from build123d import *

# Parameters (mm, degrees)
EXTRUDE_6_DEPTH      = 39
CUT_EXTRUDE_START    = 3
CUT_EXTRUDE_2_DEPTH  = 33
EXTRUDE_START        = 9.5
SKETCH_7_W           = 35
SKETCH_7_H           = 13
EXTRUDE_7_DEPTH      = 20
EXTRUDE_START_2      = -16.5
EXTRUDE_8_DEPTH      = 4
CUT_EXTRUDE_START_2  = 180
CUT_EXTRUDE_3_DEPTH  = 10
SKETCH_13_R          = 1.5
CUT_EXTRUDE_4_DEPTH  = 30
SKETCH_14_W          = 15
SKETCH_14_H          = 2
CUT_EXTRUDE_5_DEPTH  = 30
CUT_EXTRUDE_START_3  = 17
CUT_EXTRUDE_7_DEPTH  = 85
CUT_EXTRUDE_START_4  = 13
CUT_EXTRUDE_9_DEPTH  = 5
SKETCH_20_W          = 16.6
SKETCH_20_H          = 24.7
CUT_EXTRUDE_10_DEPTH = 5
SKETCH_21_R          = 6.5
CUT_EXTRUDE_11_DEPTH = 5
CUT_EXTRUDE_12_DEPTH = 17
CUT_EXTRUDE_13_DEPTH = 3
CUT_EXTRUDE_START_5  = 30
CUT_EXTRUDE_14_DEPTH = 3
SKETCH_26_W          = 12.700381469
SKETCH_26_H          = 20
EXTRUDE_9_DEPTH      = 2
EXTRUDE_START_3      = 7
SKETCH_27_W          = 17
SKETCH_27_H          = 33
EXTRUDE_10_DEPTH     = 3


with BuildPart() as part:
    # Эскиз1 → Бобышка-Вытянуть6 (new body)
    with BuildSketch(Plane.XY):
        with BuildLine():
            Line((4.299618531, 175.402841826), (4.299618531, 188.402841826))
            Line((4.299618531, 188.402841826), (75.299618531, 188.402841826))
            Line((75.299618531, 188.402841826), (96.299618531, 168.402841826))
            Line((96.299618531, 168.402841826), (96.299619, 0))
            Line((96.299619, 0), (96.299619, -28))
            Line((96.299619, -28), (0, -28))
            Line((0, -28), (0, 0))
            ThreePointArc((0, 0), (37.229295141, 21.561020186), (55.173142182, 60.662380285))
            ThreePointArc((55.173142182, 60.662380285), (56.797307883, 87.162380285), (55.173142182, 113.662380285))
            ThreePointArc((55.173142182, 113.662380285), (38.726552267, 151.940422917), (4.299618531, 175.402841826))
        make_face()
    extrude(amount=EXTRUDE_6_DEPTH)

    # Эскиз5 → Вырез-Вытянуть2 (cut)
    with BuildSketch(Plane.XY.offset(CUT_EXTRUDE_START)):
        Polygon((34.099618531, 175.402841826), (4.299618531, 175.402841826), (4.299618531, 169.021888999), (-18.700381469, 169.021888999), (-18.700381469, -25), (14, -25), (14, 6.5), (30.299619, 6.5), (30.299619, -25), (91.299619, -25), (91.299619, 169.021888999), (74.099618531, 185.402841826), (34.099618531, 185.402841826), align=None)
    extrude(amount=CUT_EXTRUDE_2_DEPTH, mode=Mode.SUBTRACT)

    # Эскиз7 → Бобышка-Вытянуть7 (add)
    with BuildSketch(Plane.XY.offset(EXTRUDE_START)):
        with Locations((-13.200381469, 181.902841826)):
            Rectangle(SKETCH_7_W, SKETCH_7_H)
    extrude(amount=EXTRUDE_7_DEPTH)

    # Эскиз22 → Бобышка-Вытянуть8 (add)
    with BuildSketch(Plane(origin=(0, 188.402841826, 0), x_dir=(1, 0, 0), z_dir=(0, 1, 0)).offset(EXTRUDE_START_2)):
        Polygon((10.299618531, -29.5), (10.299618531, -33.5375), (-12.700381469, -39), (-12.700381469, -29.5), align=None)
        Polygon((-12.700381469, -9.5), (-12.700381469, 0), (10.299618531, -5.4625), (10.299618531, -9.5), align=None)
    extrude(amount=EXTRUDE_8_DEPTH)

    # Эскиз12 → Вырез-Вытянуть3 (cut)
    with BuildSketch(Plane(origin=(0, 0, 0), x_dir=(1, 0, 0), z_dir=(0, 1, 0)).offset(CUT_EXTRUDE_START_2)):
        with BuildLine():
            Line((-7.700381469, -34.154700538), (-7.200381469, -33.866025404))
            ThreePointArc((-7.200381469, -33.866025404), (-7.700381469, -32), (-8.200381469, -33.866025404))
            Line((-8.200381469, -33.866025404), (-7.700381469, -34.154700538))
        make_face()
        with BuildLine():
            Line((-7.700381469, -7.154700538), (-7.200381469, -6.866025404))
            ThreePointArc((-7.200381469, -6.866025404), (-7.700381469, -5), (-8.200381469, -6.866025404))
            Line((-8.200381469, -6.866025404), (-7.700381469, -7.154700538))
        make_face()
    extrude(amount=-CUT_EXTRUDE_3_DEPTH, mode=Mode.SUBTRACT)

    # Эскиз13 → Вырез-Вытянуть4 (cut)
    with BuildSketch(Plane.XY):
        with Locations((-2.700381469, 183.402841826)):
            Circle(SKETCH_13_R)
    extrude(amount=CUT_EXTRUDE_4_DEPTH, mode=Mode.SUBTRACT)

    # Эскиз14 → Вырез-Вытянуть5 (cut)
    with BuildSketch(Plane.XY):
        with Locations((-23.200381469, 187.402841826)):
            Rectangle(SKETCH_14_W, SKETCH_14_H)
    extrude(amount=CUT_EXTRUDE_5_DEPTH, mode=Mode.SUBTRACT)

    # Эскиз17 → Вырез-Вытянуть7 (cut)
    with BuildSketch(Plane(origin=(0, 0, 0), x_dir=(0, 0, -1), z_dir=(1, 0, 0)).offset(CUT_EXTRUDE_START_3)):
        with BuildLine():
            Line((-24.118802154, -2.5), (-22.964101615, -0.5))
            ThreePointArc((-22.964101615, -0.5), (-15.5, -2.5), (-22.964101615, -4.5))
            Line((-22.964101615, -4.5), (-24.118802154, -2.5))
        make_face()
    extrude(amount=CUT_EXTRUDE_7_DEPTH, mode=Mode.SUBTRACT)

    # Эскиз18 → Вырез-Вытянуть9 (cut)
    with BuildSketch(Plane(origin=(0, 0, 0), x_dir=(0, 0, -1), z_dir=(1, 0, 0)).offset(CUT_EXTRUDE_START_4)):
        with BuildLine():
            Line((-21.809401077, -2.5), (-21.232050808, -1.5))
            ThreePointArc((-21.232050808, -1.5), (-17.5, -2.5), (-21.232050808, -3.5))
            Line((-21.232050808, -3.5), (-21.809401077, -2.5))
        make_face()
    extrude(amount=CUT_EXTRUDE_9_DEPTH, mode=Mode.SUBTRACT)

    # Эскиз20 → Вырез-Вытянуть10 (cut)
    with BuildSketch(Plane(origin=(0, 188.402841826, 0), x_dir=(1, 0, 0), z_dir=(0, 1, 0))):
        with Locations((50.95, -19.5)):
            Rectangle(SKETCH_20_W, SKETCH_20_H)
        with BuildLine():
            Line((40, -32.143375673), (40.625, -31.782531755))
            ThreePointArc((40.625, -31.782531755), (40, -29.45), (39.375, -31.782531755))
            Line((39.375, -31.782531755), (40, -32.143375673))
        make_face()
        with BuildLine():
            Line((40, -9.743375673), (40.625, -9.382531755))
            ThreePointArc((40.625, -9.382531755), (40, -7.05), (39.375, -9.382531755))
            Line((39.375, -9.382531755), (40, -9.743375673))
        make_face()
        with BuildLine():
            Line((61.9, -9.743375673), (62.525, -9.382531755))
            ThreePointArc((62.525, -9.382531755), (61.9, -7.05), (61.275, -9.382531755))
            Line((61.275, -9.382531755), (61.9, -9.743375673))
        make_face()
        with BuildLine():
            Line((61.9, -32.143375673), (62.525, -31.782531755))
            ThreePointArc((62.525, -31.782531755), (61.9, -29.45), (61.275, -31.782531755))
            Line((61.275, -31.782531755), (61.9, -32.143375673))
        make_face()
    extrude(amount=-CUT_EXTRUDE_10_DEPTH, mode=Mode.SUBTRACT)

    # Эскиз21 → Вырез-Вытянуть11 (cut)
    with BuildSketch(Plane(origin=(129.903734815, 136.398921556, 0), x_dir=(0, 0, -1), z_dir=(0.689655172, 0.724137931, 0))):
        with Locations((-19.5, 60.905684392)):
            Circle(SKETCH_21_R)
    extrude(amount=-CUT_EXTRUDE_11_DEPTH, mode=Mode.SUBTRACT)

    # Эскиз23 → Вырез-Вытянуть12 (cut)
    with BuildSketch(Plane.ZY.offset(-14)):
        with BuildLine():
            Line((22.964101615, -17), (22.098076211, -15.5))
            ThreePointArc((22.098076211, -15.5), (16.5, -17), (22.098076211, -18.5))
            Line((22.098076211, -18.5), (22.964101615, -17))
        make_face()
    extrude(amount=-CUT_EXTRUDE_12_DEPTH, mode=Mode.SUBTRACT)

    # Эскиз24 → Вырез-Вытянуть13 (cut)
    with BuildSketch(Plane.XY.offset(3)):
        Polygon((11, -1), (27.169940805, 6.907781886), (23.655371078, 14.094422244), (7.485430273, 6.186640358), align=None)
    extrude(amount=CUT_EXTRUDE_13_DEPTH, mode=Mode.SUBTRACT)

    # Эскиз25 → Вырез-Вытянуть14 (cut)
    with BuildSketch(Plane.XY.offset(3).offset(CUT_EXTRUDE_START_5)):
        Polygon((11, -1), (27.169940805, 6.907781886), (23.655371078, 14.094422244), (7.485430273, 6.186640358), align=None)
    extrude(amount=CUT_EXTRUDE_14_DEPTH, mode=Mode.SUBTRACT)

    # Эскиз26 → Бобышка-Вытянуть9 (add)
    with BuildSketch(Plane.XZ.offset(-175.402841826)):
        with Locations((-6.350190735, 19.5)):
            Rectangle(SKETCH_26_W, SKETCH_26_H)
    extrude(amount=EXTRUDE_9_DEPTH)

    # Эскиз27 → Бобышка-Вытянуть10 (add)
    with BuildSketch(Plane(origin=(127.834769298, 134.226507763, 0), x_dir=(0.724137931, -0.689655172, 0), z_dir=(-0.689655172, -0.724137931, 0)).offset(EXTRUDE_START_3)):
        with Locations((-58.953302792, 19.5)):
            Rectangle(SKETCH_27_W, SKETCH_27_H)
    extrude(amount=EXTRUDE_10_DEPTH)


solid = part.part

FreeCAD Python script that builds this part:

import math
import FreeCAD as App
import Part
import Sketcher

V = App.Vector
Q = App.Units.Quantity

doc = App.newDocument("Part")
body = doc.addObject("PartDesign::Body", "Body")

# Sketch on XY plane
sketch1 = doc.addObject("Sketcher::SketchObject", "Sketch")
body.addObject(sketch1)
sketch1.AttachmentSupport = (doc.XY_Plane, [""])
sketch1.MapMode = "FlatFace"
sketch1.addGeometry([
    Part.LineSegment(V(4, 188, 0), V(4, 175, 0)),  # 0
    Part.ArcOfCircle(Part.Circle(V(-19, 105, 0), V(0, 0, 1), 75), math.radians(7), math.radians(72)),  # 1
    Part.ArcOfCircle(Part.Circle(V(-160, 87, 0), V(0, 0, 1), 217), math.radians(-7.01), math.radians(7.01)),  # 2
    Part.ArcOfCircle(Part.Circle(V(-15, 69, 0), V(0, 0, 1), 71), math.radians(-78), math.radians(-7)),  # 3
    Part.LineSegment(V(0, 0, 0), V(0, -28, 0)),  # 4
    Part.LineSegment(V(0, -28, 0), V(96, -28, 0)),  # 5
    Part.LineSegment(V(96, -28, 0), V(96, 0, 0)),  # 6
    Part.LineSegment(V(96, 0, 0), V(96, 168, 0)),  # 7
    Part.LineSegment(V(96, 168, 0), V(75, 188, 0)),  # 8
    Part.LineSegment(V(75, 188, 0), V(4, 188, 0)),  # 9
], False)
sketch1.addConstraint([
    Sketcher.Constraint("Coincident", 0, 2, 1, 2),
    Sketcher.Constraint("Tangent", 1, 1, 2, 2),
    Sketcher.Constraint("Tangent", 2, 1, 3, 2),
    Sketcher.Constraint("Coincident", 3, 1, 4, 1),
    Sketcher.Constraint("Coincident", 4, 2, 5, 1),
    Sketcher.Constraint("Coincident", 5, 2, 6, 1),
    Sketcher.Constraint("Coincident", 6, 2, 7, 1),
    Sketcher.Constraint("Coincident", 7, 2, 8, 1),
    Sketcher.Constraint("Coincident", 8, 2, 9, 1),
    Sketcher.Constraint("Coincident", 9, 2, 0, 1),
    Sketcher.Constraint("Vertical", 0),
    Sketcher.Constraint("Vertical", 4),
    Sketcher.Constraint("Horizontal", 5),
    Sketcher.Constraint("Vertical", 6),
    Sketcher.Constraint("Vertical", 7),
    Sketcher.Constraint("Horizontal", 9),
    Sketcher.Constraint("Coincident", 3, 1, -1, 1),
    Sketcher.Constraint("PointOnObject", 6, 2, -1),
    Sketcher.Constraint("Vertical", 1, 1, 2, 1),
    Sketcher.Constraint("Radius", 2, Q("217 mm")),
    Sketcher.Constraint("Radius", 3, Q("71 mm")),
    Sketcher.Constraint("Radius", 1, Q("74.5 mm")),
    Sketcher.Constraint("DistanceX", 9, 2, 9, 1, Q("71 mm")),
    Sketcher.Constraint("DistanceY", 0, 2, 0, 1, Q("13 mm")),
    Sketcher.Constraint("DistanceY", 4, 2, 4, 1, Q("28 mm")),
    Sketcher.Constraint("Distance", 8, Q("29 mm")),
    Sketcher.Constraint("DistanceY", 2, 1, 1, 1, Q("53 mm")),
    Sketcher.Constraint("DistanceX", 0, 2, 7, 2, Q("92 mm")),
    Sketcher.Constraint("DistanceX", 5, 1, 5, 2, Q("96.299619 mm")),
    Sketcher.Constraint("DistanceY", 7, 1, 7, 2, Q("168.402842 mm")),
])
pad1 = doc.addObject("PartDesign::Pad", "Pad")
body.addObject(pad1)
pad1.Profile = sketch1
pad1.Length = 39

# Sketch on XY plane
sketch2 = doc.addObject("Sketcher::SketchObject", "Sketch001")
body.addObject(sketch2)
sketch2.AttachmentSupport = (doc.XY_Plane, [""])
sketch2.MapMode = "FlatFace"
sketch2.AttachmentOffset = App.Placement(V(0, 0, 3), App.Rotation())
sketch2.addGeometry([
    Part.LineSegment(V(34, 175, 0), V(4, 175, 0)),  # 0
    Part.LineSegment(V(4, 175, 0), V(4, 169, 0)),  # 1
    Part.LineSegment(V(4, 169, 0), V(-19, 169, 0)),  # 2
    Part.LineSegment(V(-19, 169, 0), V(-19, -25, 0)),  # 3
    Part.LineSegment(V(-19, -25, 0), V(14, -25, 0)),  # 4
    Part.LineSegment(V(14, -25, 0), V(14, 6, 0)),  # 5
    Part.LineSegment(V(14, 6, 0), V(30, 6, 0)),  # 6
    Part.LineSegment(V(30, 6, 0), V(30, -25, 0)),  # 7
    Part.LineSegment(V(30, -25, 0), V(91, -25, 0)),  # 8
    Part.LineSegment(V(91, -25, 0), V(91, 169, 0)),  # 9
    Part.LineSegment(V(91, 169, 0), V(74, 185, 0)),  # 10
    Part.LineSegment(V(74, 185, 0), V(34, 185, 0)),  # 11
    Part.LineSegment(V(34, 185, 0), V(34, 175, 0)),  # 12
], False)
sketch2.addConstraint([
    Sketcher.Constraint("Coincident", 0, 2, 1, 1),
    Sketcher.Constraint("Coincident", 1, 2, 2, 1),
    Sketcher.Constraint("Coincident", 2, 2, 3, 1),
    Sketcher.Constraint("Coincident", 3, 2, 4, 1),
    Sketcher.Constraint("Coincident", 4, 2, 5, 1),
    Sketcher.Constraint("Coincident", 5, 2, 6, 1),
    Sketcher.Constraint("Coincident", 6, 2, 7, 1),
    Sketcher.Constraint("Coincident", 7, 2, 8, 1),
    Sketcher.Constraint("Coincident", 8, 2, 9, 1),
    Sketcher.Constraint("Coincident", 9, 2, 10, 1),
    Sketcher.Constraint("Coincident", 10, 2, 11, 1),
    Sketcher.Constraint("Coincident", 11, 2, 12, 1),
    Sketcher.Constraint("Coincident", 12, 2, 0, 1),
    Sketcher.Constraint("Horizontal", 0),
    Sketcher.Constraint("Vertical", 1),
    Sketcher.Constraint("Horizontal", 2),
    Sketcher.Constraint("Vertical", 3),
    Sketcher.Constraint("Horizontal", 4),
    Sketcher.Constraint("Vertical", 5),
    Sketcher.Constraint("Horizontal", 6),
    Sketcher.Constraint("Vertical", 7),
    Sketcher.Constraint("Horizontal", 8),
    Sketcher.Constraint("Vertical", 9),
    Sketcher.Constraint("Horizontal", 11),
    Sketcher.Constraint("Vertical", 12),
    Sketcher.Constraint("Horizontal", 4, 2, 7, 2),
    Sketcher.Constraint("Horizontal", 2, 2, 9, 2),
    Sketcher.Constraint("DistanceX", 2, 2, 2, 1, Q("23 mm")),
    Sketcher.Constraint("DistanceX", 8, 1, 8, 2, Q("61 mm")),
    Sketcher.Constraint("DistanceX", 11, 2, 11, 1, Q("40 mm")),
    Sketcher.Constraint("DistanceY", 12, 2, 12, 1, Q("10 mm")),
    Sketcher.Constraint("DistanceX", 0, 2, 0, 1, Q("29.8 mm")),
    Sketcher.Constraint("DistanceY", 5, 1, 5, 2, Q("31.5 mm")),
    Sketcher.Constraint("DistanceY", 3, 2, -1, 1, Q("25 mm")),
    Sketcher.Constraint("DistanceX", -1, 1, 4, 2, Q("14 mm")),
    Sketcher.Constraint("DistanceX", 3, 2, 6, 2, Q("49 mm")),
    Sketcher.Constraint("DistanceX", 4, 1, 4, 2, Q("32.700381 mm")),
    Sketcher.Constraint("DistanceY", 3, 2, 3, 1, Q("194.021889 mm")),
    Sketcher.Constraint("Distance", 10, Q("23.752382 mm")),
])
pocket1 = doc.addObject("PartDesign::Pocket", "Pocket")
body.addObject(pocket1)
pocket1.Profile = sketch2
pocket1.Length = 33
pocket1.Reversed = True

# Sketch on XY plane
sketch3 = doc.addObject("Sketcher::SketchObject", "Sketch002")
body.addObject(sketch3)
sketch3.AttachmentSupport = (doc.XY_Plane, [""])
sketch3.MapMode = "FlatFace"
sketch3.AttachmentOffset = App.Placement(V(0, 0, 9.5), App.Rotation())
sketch3.addGeometry([
    Part.LineSegment(V(-31, 188, 0), V(-31, 175, 0)),
    Part.LineSegment(V(-31, 175, 0), V(4, 175, 0)),
    Part.LineSegment(V(4, 175, 0), V(4, 188, 0)),
    Part.LineSegment(V(4, 188, 0), V(-31, 188, 0)),
], False)
sketch3.addConstraint([
    Sketcher.Constraint("Coincident", 0, 2, 1, 1),
    Sketcher.Constraint("Coincident", 1, 2, 2, 1),
    Sketcher.Constraint("Coincident", 2, 2, 3, 1),
    Sketcher.Constraint("Coincident", 3, 2, 0, 1),
    Sketcher.Constraint("Vertical", 0),
    Sketcher.Constraint("Horizontal", 1),
    Sketcher.Constraint("Vertical", 2),
    Sketcher.Constraint("Horizontal", 3),
    Sketcher.Constraint("DistanceX", 1, 1, 1, 2, Q("35 mm")),
    Sketcher.Constraint("DistanceY", 0, 2, 0, 1, Q("13 mm")),
    Sketcher.Constraint("DistanceX", 0, 2, -1, 1, Q("30.700381 mm")),
    Sketcher.Constraint("DistanceY", -1, 1, 0, 2, Q("175.402842 mm")),
])
pad2 = doc.addObject("PartDesign::Pad", "Pad001")
body.addObject(pad2)
pad2.Profile = sketch3
pad2.Length = 20

# Sketch on XZ plane
sketch4 = doc.addObject("Sketcher::SketchObject", "Sketch003")
body.addObject(sketch4)
sketch4.AttachmentSupport = (doc.XZ_Plane, [""])
sketch4.MapMode = "FlatFace"
sketch4.AttachmentOffset = App.Placement(V(0, 0, -171.902842), App.Rotation())
sketch4.addGeometry([
    Part.LineSegment(V(10.3, 33.5, 0), V(10.3, 29.5, 0)),  # 0
    Part.LineSegment(V(10.3, 29.5, 0), V(-12.7, 29.5, 0)),  # 1
    Part.LineSegment(V(-12.7, 29.5, 0), V(-12.7, 39, 0)),  # 2
    Part.LineSegment(V(-12.7, 39, 0), V(10.3, 33.5, 0)),  # 3
    Part.LineSegment(V(-12.7, 0, 0), V(-12.7, 9.5, 0)),  # 4
    Part.LineSegment(V(-12.7, 9.5, 0), V(10.3, 9.5, 0)),  # 5
    Part.LineSegment(V(10.3, 9.5, 0), V(10.3, 5.5, 0)),  # 6
    Part.LineSegment(V(10.3, 5.5, 0), V(-12.7, 0, 0)),  # 7
], False)
sketch4.addConstraint([
    Sketcher.Constraint("Coincident", 0, 2, 1, 1),
    Sketcher.Constraint("Coincident", 1, 2, 2, 1),
    Sketcher.Constraint("Coincident", 2, 2, 3, 1),
    Sketcher.Constraint("Coincident", 3, 2, 0, 1),
    Sketcher.Constraint("Coincident", 4, 2, 5, 1),
    Sketcher.Constraint("Coincident", 5, 2, 6, 1),
    Sketcher.Constraint("Coincident", 6, 2, 7, 1),
    Sketcher.Constraint("Coincident", 7, 2, 4, 1),
    Sketcher.Constraint("Vertical", 0),
    Sketcher.Constraint("Horizontal", 1),
    Sketcher.Constraint("Vertical", 2),
    Sketcher.Constraint("Vertical", 4),
    Sketcher.Constraint("Horizontal", 5),
    Sketcher.Constraint("Vertical", 6),
    Sketcher.Constraint("PointOnObject", 7, 2, -1),
    Sketcher.Constraint("Vertical", 2, 2, 4, 2),
    Sketcher.Constraint("Vertical", 3, 2, 5, 2),
    Sketcher.Constraint("Equal", 2, 4),
    Sketcher.Constraint("Equal", 0, 6),
    Sketcher.Constraint("DistanceX", 1, 2, 1, 1, Q("23 mm")),
    Sketcher.Constraint("DistanceY", 2, 1, 2, 2, Q("9.5 mm")),
    Sketcher.Constraint("DistanceY", -1, 1, 2, 2, Q("39 mm")),
    Sketcher.Constraint("DistanceY", 0, 2, 0, 1, Q("4.0375 mm")),
    Sketcher.Constraint("DistanceX", -1, 1, 0, 2, Q("10.299619 mm")),
])
pad3 = doc.addObject("PartDesign::Pad", "Pad002")
body.addObject(pad3)
pad3.Profile = sketch4
pad3.Length = 4
pad3.Reversed = True

# Sketch on XZ plane
sketch5 = doc.addObject("Sketcher::SketchObject", "Sketch004")
body.addObject(sketch5)
sketch5.AttachmentSupport = (doc.XZ_Plane, [""])
sketch5.MapMode = "FlatFace"
sketch5.AttachmentOffset = App.Placement(V(0, 0, -180), App.Rotation())
sketch5.addGeometry([
    Part.LineSegment(V(-7.7, 34.2, 0), V(-7.2, 33.9, 0)),  # 0
    Part.ArcOfCircle(Part.Circle(V(-7.7, 33, 0), V(0, 0, 1), 1), math.radians(120), math.radians(420)),  # 1
    Part.LineSegment(V(-8.2, 33.9, 0), V(-7.7, 34.2, 0)),  # 2
    Part.LineSegment(V(-7.7, 7.2, 0), V(-7.2, 6.9, 0)),  # 3
    Part.ArcOfCircle(Part.Circle(V(-7.7, 6, 0), V(0, 0, 1), 1), math.radians(120), math.radians(420)),  # 4
    Part.LineSegment(V(-8.2, 6.9, 0), V(-7.7, 7.2, 0)),  # 5
], False)
sketch5.addConstraint([
    Sketcher.Constraint("Tangent", 0, 2, 1, 2),
    Sketcher.Constraint("Tangent", 1, 1, 2, 1),
    Sketcher.Constraint("Coincident", 2, 2, 0, 1),
    Sketcher.Constraint("Tangent", 3, 2, 4, 2),
    Sketcher.Constraint("Tangent", 4, 1, 5, 1),
    Sketcher.Constraint("Coincident", 5, 2, 3, 1),
    Sketcher.Constraint("Equal", 1, 4),
    Sketcher.Constraint("Parallel", 0, 3),
    Sketcher.Constraint("Parallel", 2, 5),
    Sketcher.Constraint("Horizontal", 0, 2, 1, 1),
    Sketcher.Constraint("Vertical", 1, 3, 4, 3),
    Sketcher.Constraint("Radius", 1, Q("1 mm")),
    Sketcher.Constraint("Angle", 0, Q("-30 deg")),
    Sketcher.Constraint("DistanceY", -1, 1, 1, 3, Q("33 mm")),
    Sketcher.Constraint("DistanceY", -1, 1, 4, 3, Q("6 mm")),
    Sketcher.Constraint("DistanceX", 1, 3, -1, 1, Q("7.700381 mm")),
])
pocket2 = doc.addObject("PartDesign::Pocket", "Pocket001")
body.addObject(pocket2)
pocket2.Profile = sketch5
pocket2.Length = 10
pocket2.Reversed = True

# Sketch on XY plane
sketch6 = doc.addObject("Sketcher::SketchObject", "Sketch005")
body.addObject(sketch6)
sketch6.AttachmentSupport = (doc.XY_Plane, [""])
sketch6.MapMode = "FlatFace"
sketch6.addGeometry(Part.Circle(V(-2.7, 183.4, 0), V(0, 0, 1), 1.5), False)
sketch6.addConstraint([
    Sketcher.Constraint("Diameter", 0, Q("3 mm")),
    Sketcher.Constraint("DistanceX", 0, 3, -1, 1, Q("2.700381 mm")),
    Sketcher.Constraint("DistanceY", -1, 1, 0, 3, Q("183.402842 mm")),
])
pocket3 = doc.addObject("PartDesign::Pocket", "Pocket002")
body.addObject(pocket3)
pocket3.Profile = sketch6
pocket3.Length = 30
pocket3.Reversed = True

# Sketch on XY plane
sketch7 = doc.addObject("Sketcher::SketchObject", "Sketch006")
body.addObject(sketch7)
sketch7.AttachmentSupport = (doc.XY_Plane, [""])
sketch7.MapMode = "FlatFace"
sketch7.addGeometry([
    Part.LineSegment(V(-30.7, 188.4, 0), V(-30.7, 186.4, 0)),
    Part.LineSegment(V(-30.7, 186.4, 0), V(-15.7, 186.4, 0)),
    Part.LineSegment(V(-15.7, 186.4, 0), V(-15.7, 188.4, 0)),
    Part.LineSegment(V(-15.7, 188.4, 0), V(-30.7, 188.4, 0)),
], False)
sketch7.addConstraint([
    Sketcher.Constraint("Coincident", 0, 2, 1, 1),
    Sketcher.Constraint("Coincident", 1, 2, 2, 1),
    Sketcher.Constraint("Coincident", 2, 2, 3, 1),
    Sketcher.Constraint("Coincident", 3, 2, 0, 1),
    Sketcher.Constraint("Vertical", 0),
    Sketcher.Constraint("Horizontal", 1),
    Sketcher.Constraint("Vertical", 2),
    Sketcher.Constraint("Horizontal", 3),
    Sketcher.Constraint("DistanceX", 1, 1, 1, 2, Q("15 mm")),
    Sketcher.Constraint("DistanceY", 0, 2, 0, 1, Q("2 mm")),
    Sketcher.Constraint("DistanceX", 0, 2, -1, 1, Q("30.700381 mm")),
    Sketcher.Constraint("DistanceY", -1, 1, 0, 2, Q("186.402842 mm")),
])
pocket4 = doc.addObject("PartDesign::Pocket", "Pocket003")
body.addObject(pocket4)
pocket4.Profile = sketch7
pocket4.Length = 30
pocket4.Reversed = True

# Sketch on YZ plane
sketch8 = doc.addObject("Sketcher::SketchObject", "Sketch007")
body.addObject(sketch8)
sketch8.AttachmentSupport = (doc.YZ_Plane, [""])
sketch8.MapMode = "FlatFace"
sketch8.AttachmentOffset = App.Placement(V(0, 0, 17), App.Rotation())
sketch8.addGeometry([
    Part.LineSegment(V(-0.5, 23, 0), V(-2.5, 24.1, 0)),
    Part.LineSegment(V(-2.5, 24.1, 0), V(-4.5, 23, 0)),
    Part.ArcOfCircle(Part.Circle(V(-2.5, 19.5, 0), V(0, 0, 1), 4), math.radians(120), math.radians(420)),
], False)
sketch8.addConstraint([
    Sketcher.Constraint("Coincident", 0, 2, 1, 1),
    Sketcher.Constraint("Tangent", 1, 2, 2, 1),
    Sketcher.Constraint("Tangent", 2, 2, 0, 1),
    Sketcher.Constraint("Horizontal", 1, 2, 2, 2),
    Sketcher.Constraint("Radius", 2, Q("4 mm")),
    Sketcher.Constraint("Angle", 0, Q("150 deg")),
    Sketcher.Constraint("DistanceX", 2, 3, -1, 1, Q("2.5 mm")),
    Sketcher.Constraint("DistanceY", -1, 1, 2, 3, Q("19.5 mm")),
])
pocket5 = doc.addObject("PartDesign::Pocket", "Pocket004")
body.addObject(pocket5)
pocket5.Profile = sketch8
pocket5.Length = 85
pocket5.Reversed = True

# Sketch on YZ plane
sketch9 = doc.addObject("Sketcher::SketchObject", "Sketch008")
body.addObject(sketch9)
sketch9.AttachmentSupport = (doc.YZ_Plane, [""])
sketch9.MapMode = "FlatFace"
sketch9.AttachmentOffset = App.Placement(V(0, 0, 13), App.Rotation())
sketch9.addGeometry([
    Part.LineSegment(V(-1.5, 21.2, 0), V(-2.5, 21.8, 0)),
    Part.LineSegment(V(-2.5, 21.8, 0), V(-3.5, 21.2, 0)),
    Part.ArcOfCircle(Part.Circle(V(-2.5, 19.5, 0), V(0, 0, 1), 2), math.radians(120), math.radians(420)),
], False)
sketch9.addConstraint([
    Sketcher.Constraint("Coincident", 0, 2, 1, 1),
    Sketcher.Constraint("Tangent", 1, 2, 2, 1),
    Sketcher.Constraint("Tangent", 2, 2, 0, 1),
    Sketcher.Constraint("Horizontal", 1, 2, 2, 2),
    Sketcher.Constraint("Radius", 2, Q("2 mm")),
    Sketcher.Constraint("Angle", 0, Q("150 deg")),
    Sketcher.Constraint("DistanceX", 2, 3, -1, 1, Q("2.5 mm")),
    Sketcher.Constraint("DistanceY", -1, 1, 2, 3, Q("19.5 mm")),
])
pocket6 = doc.addObject("PartDesign::Pocket", "Pocket005")
body.addObject(pocket6)
pocket6.Profile = sketch9
pocket6.Length = 5
pocket6.Reversed = True

# Sketch on XZ plane
sketch10 = doc.addObject("Sketcher::SketchObject", "Sketch009")
body.addObject(sketch10)
sketch10.AttachmentSupport = (doc.XZ_Plane, [""])
sketch10.MapMode = "FlatFace"
sketch10.AttachmentOffset = App.Placement(V(0, 0, -188.402842), App.Rotation())
sketch10.addGeometry([
    Part.LineSegment(V(42.6, 7.2, 0), V(42.6, 31.9, 0)),  # 0
    Part.LineSegment(V(42.6, 31.9, 0), V(59.2, 31.9, 0)),  # 1
    Part.LineSegment(V(59.2, 31.9, 0), V(59.2, 7.2, 0)),  # 2
    Part.LineSegment(V(59.2, 7.2, 0), V(42.6, 7.2, 0)),  # 3
    Part.LineSegment(V(40, 32.1, 0), V(40.6, 31.8, 0)),  # 4
    Part.ArcOfCircle(Part.Circle(V(40, 30.7, 0), V(0, 0, 1), 1.2), math.radians(120), math.radians(420)),  # 5
    Part.LineSegment(V(39.4, 31.8, 0), V(40, 32.1, 0)),  # 6
    Part.LineSegment(V(40, 9.7, 0), V(40.6, 9.4, 0)),  # 7
    Part.ArcOfCircle(Part.Circle(V(40, 8.3, 0), V(0, 0, 1), 1.2), math.radians(120), math.radians(420)),  # 8
    Part.LineSegment(V(39.4, 9.4, 0), V(40, 9.7, 0)),  # 9
    Part.LineSegment(V(61.9, 9.7, 0), V(62.5, 9.4, 0)),  # 10
    Part.ArcOfCircle(Part.Circle(V(61.9, 8.3, 0), V(0, 0, 1), 1.2), math.radians(120), math.radians(420)),  # 11
    Part.LineSegment(V(61.3, 9.4, 0), V(61.9, 9.7, 0)),  # 12
    Part.LineSegment(V(61.9, 32.1, 0), V(62.5, 31.8, 0)),  # 13
    Part.ArcOfCircle(Part.Circle(V(61.9, 30.7, 0), V(0, 0, 1), 1.2), math.radians(120), math.radians(420)),  # 14
    Part.LineSegment(V(61.3, 31.8, 0), V(61.9, 32.1, 0)),  # 15
], False)
sketch10.addConstraint([
    Sketcher.Constraint("Coincident", 0, 2, 1, 1),
    Sketcher.Constraint("Coincident", 1, 2, 2, 1),
    Sketcher.Constraint("Coincident", 2, 2, 3, 1),
    Sketcher.Constraint("Coincident", 3, 2, 0, 1),
    Sketcher.Constraint("Tangent", 4, 2, 5, 2),
    Sketcher.Constraint("Tangent", 5, 1, 6, 1),
    Sketcher.Constraint("Coincident", 6, 2, 4, 1),
    Sketcher.Constraint("Tangent", 7, 2, 8, 2),
    Sketcher.Constraint("Tangent", 8, 1, 9, 1),
    Sketcher.Constraint("Coincident", 9, 2, 7, 1),
    Sketcher.Constraint("Tangent", 10, 2, 11, 2),
    Sketcher.Constraint("Tangent", 11, 1, 12, 1),
    Sketcher.Constraint("Coincident", 12, 2, 10, 1),
    Sketcher.Constraint("Tangent", 13, 2, 14, 2),
    Sketcher.Constraint("Tangent", 14, 1, 15, 1),
    Sketcher.Constraint("Coincident", 15, 2, 13, 1),
    Sketcher.Constraint("Vertical", 0),
    Sketcher.Constraint("Horizontal", 1),
    Sketcher.Constraint("Vertical", 2),
    Sketcher.Constraint("Horizontal", 3),
    Sketcher.Constraint("Equal", 5, 8),
    Sketcher.Constraint("Equal", 8, 11),
    Sketcher.Constraint("Equal", 11, 14),
    Sketcher.Constraint("Parallel", 4, 7),
    Sketcher.Constraint("Parallel", 6, 9),
    Sketcher.Constraint("Parallel", 7, 10),
    Sketcher.Constraint("Parallel", 9, 12),
    Sketcher.Constraint("Parallel", 10, 13),
    Sketcher.Constraint("Parallel", 12, 15),
    Sketcher.Constraint("Horizontal", 8, 3, 11, 3),
    Sketcher.Constraint("Horizontal", 5, 3, 14, 3),
    Sketcher.Constraint("Horizontal", 4, 2, 5, 1),
    Sketcher.Constraint("Vertical", 5, 3, 8, 3),
    Sketcher.Constraint("Vertical", 11, 3, 14, 3),
    Sketcher.Constraint("Angle", 4, Q("-30 deg")),
    Sketcher.Constraint("Radius", 5, Q("1.25 mm")),
    Sketcher.Constraint("DistanceX", 1, 1, 1, 2, Q("16.6 mm")),
    Sketcher.Constraint("DistanceY", 0, 1, 0, 2, Q("24.7 mm")),
    Sketcher.Constraint("DistanceX", -1, 1, 5, 3, Q("40 mm")),
    Sketcher.Constraint("DistanceY", -1, 1, 5, 3, Q("30.7 mm")),
    Sketcher.Constraint("DistanceY", -1, 1, 8, 3, Q("8.3 mm")),
    Sketcher.Constraint("DistanceX", -1, 1, 11, 3, Q("61.9 mm")),
    Sketcher.Constraint("DistanceX", -1, 1, 0, 2, Q("42.65 mm")),
    Sketcher.Constraint("DistanceY", -1, 1, 0, 2, Q("31.85 mm")),
])
pocket7 = doc.addObject("PartDesign::Pocket", "Pocket006")
body.addObject(pocket7)
pocket7.Profile = sketch10
pocket7.Length = 5
pocket7.Reversed = True

# Sketch on an angled plane
sketch11 = doc.addObject("Sketcher::SketchObject", "Sketch010")
body.addObject(sketch11)
sketch11.Placement = App.Placement(V(129.903735, 136.398922, 0), App.Rotation(V(0, 0, -1), V(-0.724137931, 0.689655172, 0), V(0.689655172, 0.724137931, 0), "ZXY"))
sketch11.addGeometry(Part.Circle(V(-20, 61, 0), V(0, 0, 1), 6), False)
sketch11.addConstraint([
    Sketcher.Constraint("Diameter", 0, Q("13 mm")),
    Sketcher.Constraint("DistanceX", 0, 3, -1, 1, Q("19.5 mm")),
    Sketcher.Constraint("DistanceY", -1, 1, 0, 3, Q("60.905684 mm")),
])
pocket8 = doc.addObject("PartDesign::Pocket", "Pocket007")
body.addObject(pocket8)
pocket8.Profile = sketch11
pocket8.Length = 5

# Sketch on YZ plane
sketch12 = doc.addObject("Sketcher::SketchObject", "Sketch011")
body.addObject(sketch12)
sketch12.AttachmentSupport = (doc.YZ_Plane, [""])
sketch12.MapMode = "FlatFace"
sketch12.AttachmentOffset = App.Placement(V(0, 0, 14), App.Rotation())
sketch12.addGeometry([
    Part.LineSegment(V(-17, 23, 0), V(-15.5, 22.1, 0)),
    Part.ArcOfCircle(Part.Circle(V(-17, 19.5, 0), V(0, 0, 1), 3), math.radians(120), math.radians(420)),
    Part.LineSegment(V(-18.5, 22.1, 0), V(-17, 23, 0)),
], False)
sketch12.addConstraint([
    Sketcher.Constraint("Tangent", 0, 2, 1, 2),
    Sketcher.Constraint("Tangent", 1, 1, 2, 1),
    Sketcher.Constraint("Coincident", 2, 2, 0, 1),
    Sketcher.Constraint("Horizontal", 0, 2, 1, 1),
    Sketcher.Constraint("Radius", 1, Q("3 mm")),
    Sketcher.Constraint("Angle", 0, Q("-30 deg")),
    Sketcher.Constraint("DistanceX", 1, 3, -1, 1, Q("17 mm")),
    Sketcher.Constraint("DistanceY", -1, 1, 1, 3, Q("19.5 mm")),
])
pocket9 = doc.addObject("PartDesign::Pocket", "Pocket008")
body.addObject(pocket9)
pocket9.Profile = sketch12
pocket9.Length = 17
pocket9.Reversed = True

# Sketch on XY plane
sketch13 = doc.addObject("Sketcher::SketchObject", "Sketch012")
body.addObject(sketch13)
sketch13.AttachmentSupport = (doc.XY_Plane, [""])
sketch13.MapMode = "FlatFace"
sketch13.AttachmentOffset = App.Placement(V(0, 0, 3), App.Rotation())
sketch13.addGeometry([
    Part.LineSegment(V(11, -1, 0), V(27, 7, 0)),
    Part.LineSegment(V(27, 7, 0), V(24, 14, 0)),
    Part.LineSegment(V(24, 14, 0), V(7, 6, 0)),
    Part.LineSegment(V(7, 6, 0), V(11, -1, 0)),
], False)
sketch13.addConstraint([
    Sketcher.Constraint("Coincident", 0, 2, 1, 1),
    Sketcher.Constraint("Coincident", 1, 2, 2, 1),
    Sketcher.Constraint("Coincident", 2, 2, 3, 1),
    Sketcher.Constraint("Coincident", 3, 2, 0, 1),
    Sketcher.Constraint("Perpendicular", 0, 1),
    Sketcher.Constraint("Perpendicular", 1, 2),
    Sketcher.Constraint("Perpendicular", 2, 3),
    Sketcher.Constraint("Distance", 0, Q("18 mm")),
    Sketcher.Constraint("Distance", 1, Q("8 mm")),
    Sketcher.Constraint("DistanceX", -1, 1, 3, 2, Q("11 mm")),
    Sketcher.Constraint("DistanceY", 3, 2, -1, 1, Q("1 mm")),
    Sketcher.Constraint("DistanceX", -1, 1, 0, 2, Q("27.169941 mm")),
])
pocket10 = doc.addObject("PartDesign::Pocket", "Pocket009")
body.addObject(pocket10)
pocket10.Profile = sketch13
pocket10.Length = 3
pocket10.Reversed = True

# Sketch on XY plane
sketch14 = doc.addObject("Sketcher::SketchObject", "Sketch013")
body.addObject(sketch14)
sketch14.AttachmentSupport = (doc.XY_Plane, [""])
sketch14.MapMode = "FlatFace"
sketch14.AttachmentOffset = App.Placement(V(0, 0, 33), App.Rotation())
sketch14.addGeometry([
    Part.LineSegment(V(11, -1, 0), V(27, 7, 0)),
    Part.LineSegment(V(27, 7, 0), V(24, 14, 0)),
    Part.LineSegment(V(24, 14, 0), V(7, 6, 0)),
    Part.LineSegment(V(7, 6, 0), V(11, -1, 0)),
], False)
sketch14.addConstraint([
    Sketcher.Constraint("Coincident", 0, 2, 1, 1),
    Sketcher.Constraint("Coincident", 1, 2, 2, 1),
    Sketcher.Constraint("Coincident", 2, 2, 3, 1),
    Sketcher.Constraint("Coincident", 3, 2, 0, 1),
    Sketcher.Constraint("Perpendicular", 0, 1),
    Sketcher.Constraint("Perpendicular", 1, 2),
    Sketcher.Constraint("Perpendicular", 2, 3),
    Sketcher.Constraint("Distance", 0, Q("18 mm")),
    Sketcher.Constraint("Distance", 1, Q("8 mm")),
    Sketcher.Constraint("DistanceX", -1, 1, 3, 2, Q("11 mm")),
    Sketcher.Constraint("DistanceY", 3, 2, -1, 1, Q("1 mm")),
    Sketcher.Constraint("DistanceX", -1, 1, 0, 2, Q("27.169941 mm")),
])
pocket11 = doc.addObject("PartDesign::Pocket", "Pocket010")
body.addObject(pocket11)
pocket11.Profile = sketch14
pocket11.Length = 3
pocket11.Reversed = True

# Sketch on XZ plane
sketch15 = doc.addObject("Sketcher::SketchObject", "Sketch014")
body.addObject(sketch15)
sketch15.AttachmentSupport = (doc.XZ_Plane, [""])
sketch15.MapMode = "FlatFace"
sketch15.AttachmentOffset = App.Placement(V(0, 0, -175.402842), App.Rotation())
sketch15.addGeometry([
    Part.LineSegment(V(-13, 30, 0), V(-13, 10, 0)),
    Part.LineSegment(V(-13, 10, 0), V(0, 10, 0)),
    Part.LineSegment(V(0, 10, 0), V(0, 30, 0)),
    Part.LineSegment(V(0, 30, 0), V(-13, 30, 0)),
], False)
sketch15.addConstraint([
    Sketcher.Constraint("Coincident", 0, 2, 1, 1),
    Sketcher.Constraint("Coincident", 1, 2, 2, 1),
    Sketcher.Constraint("Coincident", 2, 2, 3, 1),
    Sketcher.Constraint("Coincident", 3, 2, 0, 1),
    Sketcher.Constraint("Vertical", 0),
    Sketcher.Constraint("Horizontal", 1),
    Sketcher.Constraint("Vertical", 2),
    Sketcher.Constraint("Horizontal", 3),
    Sketcher.Constraint("PointOnObject", 1, 2, -2),
    Sketcher.Constraint("DistanceY", 0, 2, 0, 1, Q("20 mm")),
    Sketcher.Constraint("DistanceY", -1, 1, 0, 2, Q("9.5 mm")),
    Sketcher.Constraint("DistanceX", 1, 1, 1, 2, Q("12.700381 mm")),
])
pad4 = doc.addObject("PartDesign::Pad", "Pad003")
body.addObject(pad4)
pad4.Profile = sketch15
pad4.Length = 2

# Sketch on an angled plane
sketch16 = doc.addObject("Sketcher::SketchObject", "Sketch015")
body.addObject(sketch16)
sketch16.Placement = App.Placement(V(123.007183, 129.157542, 0), App.Rotation(V(0.724137931, -0.689655172, 0), V(0, 0, 0.999999999), V(-0.689655172, -0.724137931, 0), "ZXY"))
sketch16.addGeometry([
    Part.LineSegment(V(-67, 36, 0), V(-67, 3, 0)),
    Part.LineSegment(V(-67, 3, 0), V(-50, 3, 0)),
    Part.LineSegment(V(-50, 3, 0), V(-50, 36, 0)),
    Part.LineSegment(V(-50, 36, 0), V(-67, 36, 0)),
], False)
sketch16.addConstraint([
    Sketcher.Constraint("Coincident", 0, 2, 1, 1),
    Sketcher.Constraint("Coincident", 1, 2, 2, 1),
    Sketcher.Constraint("Coincident", 2, 2, 3, 1),
    Sketcher.Constraint("Coincident", 3, 2, 0, 1),
    Sketcher.Constraint("Vertical", 0),
    Sketcher.Constraint("Horizontal", 1),
    Sketcher.Constraint("Vertical", 2),
    Sketcher.Constraint("Horizontal", 3),
    Sketcher.Constraint("DistanceX", 1, 1, 1, 2, Q("17 mm")),
    Sketcher.Constraint("DistanceY", 0, 2, 0, 1, Q("33 mm")),
    Sketcher.Constraint("DistanceY", -1, 1, 0, 2, Q("3 mm")),
    Sketcher.Constraint("DistanceX", 0, 2, -1, 1, Q("67.453303 mm")),
])
pad5 = doc.addObject("PartDesign::Pad", "Pad004")
body.addObject(pad5)
pad5.Profile = sketch16
pad5.Length = 3

doc.recompute()
